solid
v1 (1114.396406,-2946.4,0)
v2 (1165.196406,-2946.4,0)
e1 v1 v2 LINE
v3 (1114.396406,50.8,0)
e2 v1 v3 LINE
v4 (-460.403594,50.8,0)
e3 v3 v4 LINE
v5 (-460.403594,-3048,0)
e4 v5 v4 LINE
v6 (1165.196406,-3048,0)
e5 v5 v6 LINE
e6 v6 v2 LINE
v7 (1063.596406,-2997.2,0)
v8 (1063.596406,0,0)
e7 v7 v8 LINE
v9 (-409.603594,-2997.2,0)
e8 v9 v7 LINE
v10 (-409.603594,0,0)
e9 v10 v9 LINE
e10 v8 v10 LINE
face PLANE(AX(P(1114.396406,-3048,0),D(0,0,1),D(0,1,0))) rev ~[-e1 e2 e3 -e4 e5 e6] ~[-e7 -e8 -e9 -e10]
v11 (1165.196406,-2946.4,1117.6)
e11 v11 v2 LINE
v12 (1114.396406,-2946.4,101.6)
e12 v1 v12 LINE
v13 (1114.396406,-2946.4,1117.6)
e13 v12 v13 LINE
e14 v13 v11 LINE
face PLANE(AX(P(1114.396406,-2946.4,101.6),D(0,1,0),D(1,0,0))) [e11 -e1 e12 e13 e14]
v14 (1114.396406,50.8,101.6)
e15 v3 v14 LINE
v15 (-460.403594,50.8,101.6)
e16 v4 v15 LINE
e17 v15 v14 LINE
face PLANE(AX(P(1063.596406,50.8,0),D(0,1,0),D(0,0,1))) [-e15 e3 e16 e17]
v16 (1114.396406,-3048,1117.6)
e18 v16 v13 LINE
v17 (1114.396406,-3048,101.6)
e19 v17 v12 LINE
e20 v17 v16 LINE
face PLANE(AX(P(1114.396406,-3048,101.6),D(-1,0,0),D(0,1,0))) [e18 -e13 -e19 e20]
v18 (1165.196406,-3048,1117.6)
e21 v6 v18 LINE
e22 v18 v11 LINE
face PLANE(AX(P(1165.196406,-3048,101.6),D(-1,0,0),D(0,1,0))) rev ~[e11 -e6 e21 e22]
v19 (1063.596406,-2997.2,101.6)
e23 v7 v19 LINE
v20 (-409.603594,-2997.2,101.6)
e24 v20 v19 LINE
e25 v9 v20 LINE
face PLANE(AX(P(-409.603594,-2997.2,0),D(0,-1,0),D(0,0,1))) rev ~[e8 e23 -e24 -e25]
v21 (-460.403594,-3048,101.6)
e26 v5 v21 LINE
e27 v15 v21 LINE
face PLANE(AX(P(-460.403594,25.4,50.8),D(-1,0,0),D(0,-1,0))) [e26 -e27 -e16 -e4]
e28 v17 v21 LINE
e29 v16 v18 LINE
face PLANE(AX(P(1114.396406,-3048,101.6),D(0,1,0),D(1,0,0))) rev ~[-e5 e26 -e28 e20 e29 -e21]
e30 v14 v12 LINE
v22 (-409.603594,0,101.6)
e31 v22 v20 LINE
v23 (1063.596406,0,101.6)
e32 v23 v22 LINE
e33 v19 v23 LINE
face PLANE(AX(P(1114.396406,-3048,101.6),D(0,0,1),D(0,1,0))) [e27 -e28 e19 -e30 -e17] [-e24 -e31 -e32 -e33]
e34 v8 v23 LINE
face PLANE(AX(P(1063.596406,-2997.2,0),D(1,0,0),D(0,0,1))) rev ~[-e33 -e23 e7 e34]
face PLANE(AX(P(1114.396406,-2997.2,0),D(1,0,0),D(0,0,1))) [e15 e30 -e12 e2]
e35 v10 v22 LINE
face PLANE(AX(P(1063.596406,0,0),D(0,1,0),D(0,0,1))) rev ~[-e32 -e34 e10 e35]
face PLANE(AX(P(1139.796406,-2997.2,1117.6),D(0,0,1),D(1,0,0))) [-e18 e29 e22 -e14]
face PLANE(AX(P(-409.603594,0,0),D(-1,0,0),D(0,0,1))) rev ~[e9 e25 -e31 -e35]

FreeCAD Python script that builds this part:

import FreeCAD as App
import Part
import Sketcher
Q = App.Units.Quantity

doc = App.newDocument("Part")
body = doc.addObject("PartDesign::Body", "Body")

sketch1 = doc.addObject("Sketcher::SketchObject", "Sketch")
body.addObject(sketch1)
sketch1.AttachmentSupport = (doc.XZ_Plane, [""])
sketch1.MapMode = "FlatFace"
sketch1.addGeometry([
    Part.LineSegment(App.Vector(-460, 102, 0), App.Vector(-460, 0, 0)),
    Part.LineSegment(App.Vector(-460, 0, 0), App.Vector(-410, 0, 0)),
    Part.LineSegment(App.Vector(-410, 0, 0), App.Vector(-410, 102, 0)),
    Part.LineSegment(App.Vector(-410, 102, 0), App.Vector(-460, 102, 0)),
], False)
sketch1.addConstraint([
    Sketcher.Constraint("Coincident", 0, 2, 1, 1),
    Sketcher.Constraint("Coincident", 1, 2, 2, 1),
    Sketcher.Constraint("Coincident", 2, 2, 3, 1),
    Sketcher.Constraint("Coincident", 3, 2, 0, 1),
    Sketcher.Constraint("Vertical", 0),
    Sketcher.Constraint("Horizontal", 1),
    Sketcher.Constraint("Vertical", 2),
    Sketcher.Constraint("Horizontal", 3),
    Sketcher.Constraint("PointOnObject", 0, 2, -1),
    Sketcher.Constraint("DistanceX", 1, 1, 1, 2, Q("2 in")),
    Sketcher.Constraint("DistanceY", 0, 2, 0, 1, Q("4 in")),
    Sketcher.Constraint("DistanceX", 0, 2, -1, 1, Q("460.403594 mm")),
])
pad1 = doc.addObject("PartDesign::Pad", "Pad")
body.addObject(pad1)
pad1.Profile = sketch1
pad1.Length = Q("120 in")

sketch2 = doc.addObject("Sketcher::SketchObject", "Sketch001")
body.addObject(sketch2)
sketch2.AttachmentSupport = (doc.YZ_Plane, [""])
sketch2.MapMode = "FlatFace"
sketch2.AttachmentOffset = App.Placement(App.Vector(0, 0, -409.603594), App.Rotation())
sketch2.addGeometry([
    Part.LineSegment(App.Vector(-3048, 102, 0), App.Vector(-3048, 0, 0)),
    Part.LineSegment(App.Vector(-3048, 0, 0), App.Vector(-2997, 0, 0)),
    Part.LineSegment(App.Vector(-2997, 0, 0), App.Vector(-2997, 102, 0)),
    Part.LineSegment(App.Vector(-2997, 102, 0), App.Vector(-3048, 102, 0)),
], False)
sketch2.addConstraint([
    Sketcher.Constraint("Coincident", 0, 2, 1, 1),
    Sketcher.Constraint("Coincident", 1, 2, 2, 1),
    Sketcher.Constraint("Coincident", 2, 2, 3, 1),
    Sketcher.Constraint("Coincident", 3, 2, 0, 1),
    Sketcher.Constraint("Vertical", 0),
    Sketcher.Constraint("Horizontal", 1),
    Sketcher.Constraint("Vertical", 2),
    Sketcher.Constraint("Horizontal", 3),
    Sketcher.Constraint("PointOnObject", 0, 2, -1),
    Sketcher.Constraint("DistanceX", 1, 1, 1, 2, Q("2 in")),
    Sketcher.Constraint("DistanceY", 0, 2, 0, 1, Q("4 in")),
    Sketcher.Constraint("DistanceX", 0, 2, -1, 1, Q("120 in")),
])
pad2 = doc.addObject("PartDesign::Pad", "Pad001")
body.addObject(pad2)
pad2.Profile = sketch2
pad2.Length = Q("60 in")

sketch3 = doc.addObject("Sketcher::SketchObject", "Sketch002")
body.addObject(sketch3)
sketch3.AttachmentSupport = (doc.XZ_Plane, [""])
sketch3.MapMode = "FlatFace"
sketch3.AttachmentOffset = App.Placement(App.Vector(0, 0, 118 * 25.4), App.Rotation())
sketch3.addGeometry([
    Part.LineSegment(App.Vector(1114, 102, 0), App.Vector(1114, 0, 0)),
    Part.LineSegment(App.Vector(1114, 0, 0), App.Vector(1064, 0, 0)),
    Part.LineSegment(App.Vector(1064, 0, 0), App.Vector(1064, 102, 0)),
    Part.LineSegment(App.Vector(1064, 102, 0), App.Vector(1114, 102, 0)),
], False)
sketch3.addConstraint([
    Sketcher.Constraint("Coincident", 0, 2, 1, 1),
    Sketcher.Constraint("Coincident", 1, 2, 2, 1),
    Sketcher.Constraint("Coincident", 2, 2, 3, 1),
    Sketcher.Constraint("Coincident", 3, 2, 0, 1),
    Sketcher.Constraint("Vertical", 0),
    Sketcher.Constraint("Horizontal", 1),
    Sketcher.Constraint("Vertical", 2),
    Sketcher.Constraint("Horizontal", 3),
    Sketcher.Constraint("PointOnObject", 0, 2, -1),
    Sketcher.Constraint("DistanceX", 1, 2, 1, 1, Q("2 in")),
    Sketcher.Constraint("DistanceY", 0, 2, 0, 1, Q("4 in")),
    Sketcher.Constraint("DistanceX", -1, 1, 0, 2, Q("1114.396406 mm")),
])
pad3 = doc.addObject("PartDesign::Pad", "Pad002")
body.addObject(pad3)
pad3.Profile = sketch3
pad3.Length = Q("120 in")
pad3.Reversed = True

sketch4 = doc.addObject("Sketcher::SketchObject", "Sketch003")
body.addObject(sketch4)
sketch4.AttachmentSupport = (doc.YZ_Plane, [""])
sketch4.MapMode = "FlatFace"
sketch4.AttachmentOffset = App.Placement(App.Vector(0, 0, 1063.596406), App.Rotation())
sketch4.addGeometry([
    Part.LineSegment(App.Vector(51, 102, 0), App.Vector(51, 0, 0)),
    Part.LineSegment(App.Vector(51, 0, 0), App.Vector(0, 0, 0)),
    Part.LineSegment(App.Vector(0, 0, 0), App.Vector(0, 102, 0)),
    Part.LineSegment(App.Vector(0, 102, 0), App.Vector(51, 102, 0)),
], False)
sketch4.addConstraint([
    Sketcher.Constraint("Coincident", 0, 2, 1, 1),
    Sketcher.Constraint("Coincident", 1, 2, 2, 1),
    Sketcher.Constraint("Coincident", 2, 2, 3, 1),
    Sketcher.Constraint("Coincident", 3, 2, 0, 1),
    Sketcher.Constraint("Vertical", 0),
    Sketcher.Constraint("Horizontal", 1),
    Sketcher.Constraint("Vertical", 2),
    Sketcher.Constraint("Horizontal", 3),
    Sketcher.Constraint("Coincident", 1, 2, -1, 1),
    Sketcher.Constraint("DistanceX", 1, 2, 1, 1, Q("2 in")),
    Sketcher.Constraint("DistanceY", 0, 2, 0, 1, Q("4 in")),
])
pad4 = doc.addObject("PartDesign::Pad", "Pad003")
body.addObject(pad4)
pad4.Profile = sketch4
pad4.Length = Q("60 in")
pad4.Reversed = True

sketch5 = doc.addObject("Sketcher::SketchObject", "Sketch004")
body.addObject(sketch5)
sketch5.AttachmentSupport = (doc.YZ_Plane, [""])
sketch5.MapMode = "FlatFace"
sketch5.AttachmentOffset = App.Placement(App.Vector(0, 0, 1114.396406), App.Rotation())
sketch5.addGeometry([
    Part.LineSegment(App.Vector(-3048, 102, 0), App.Vector(-3048, 0, 0)),
    Part.LineSegment(App.Vector(-3048, 0, 0), App.Vector(-2946, 0, 0)),
    Part.LineSegment(App.Vector(-2946, 0, 0), App.Vector(-2946, 102, 0)),
    Part.LineSegment(App.Vector(-2946, 102, 0), App.Vector(-3048, 102, 0)),
], False)
sketch5.addConstraint([
    Sketcher.Constraint("Coincident", 0, 2, 1, 1),
    Sketcher.Constraint("Coincident", 1, 2, 2, 1),
    Sketcher.Constraint("Coincident", 2, 2, 3, 1),
    Sketcher.Constraint("Coincident", 3, 2, 0, 1),
    Sketcher.Constraint("Vertical", 0),
    Sketcher.Constraint("Horizontal", 1),
    Sketcher.Constraint("Vertical", 2),
    Sketcher.Constraint("Horizontal", 3),
    Sketcher.Constraint("PointOnObject", 0, 2, -1),
    Sketcher.Constraint("Equal", 3, 0),
    Sketcher.Constraint("DistanceX", 1, 1, 1, 2, Q("4 in")),
    Sketcher.Constraint("DistanceX", 0, 2, -1, 1, Q("120 in")),
])
pad5 = doc.addObject("PartDesign::Pad", "Pad004")
body.addObject(pad5)
pad5.Profile = sketch5
pad5.Length = Q("2 in")

sketch6 = doc.addObject("Sketcher::SketchObject", "Sketch005")
body.addObject(sketch6)
sketch6.AttachmentSupport = (doc.XY_Plane, [""])
sketch6.MapMode = "FlatFace"
sketch6.AttachmentOffset = App.Placement(App.Vector(0, 0, 4 * 25.4), App.Rotation())
sketch6.addGeometry([
    Part.LineSegment(App.Vector(1114, -2946, 0), App.Vector(1114, -3048, 0)),
    Part.LineSegment(App.Vector(1114, -3048, 0), App.Vector(1165, -3048, 0)),
    Part.LineSegment(App.Vector(1165, -3048, 0), App.Vector(1165, -2946, 0)),
    Part.LineSegment(App.Vector(1165, -2946, 0), App.Vector(1114, -2946, 0)),
], False)
sketch6.addConstraint([
    Sketcher.Constraint("Coincident", 0, 2, 1, 1),
    Sketcher.Constraint("Coincident", 1, 2, 2, 1),
    Sketcher.Constraint("Coincident", 2, 2, 3, 1),
    Sketcher.Constraint("Coincident", 3, 2, 0, 1),
    Sketcher.Constraint("Vertical", 0),
    Sketcher.Constraint("Horizontal", 1),
    Sketcher.Constraint("Vertical", 2),
    Sketcher.Constraint("Horizontal", 3),
    Sketcher.Constraint("DistanceX", 1, 1, 1, 2, Q("2 in")),
    Sketcher.Constraint("DistanceY", 0, 2, 0, 1, Q("4 in")),
    Sketcher.Constraint("DistanceY", 0, 2, -1, 1, Q("120 in")),
    Sketcher.Constraint("DistanceX", -1, 1, 0, 2, Q("1114.396406 mm")),
])
pad6 = doc.addObject("PartDesign::Pad", "Pad005")
body.addObject(pad6)
pad6.Profile = sketch6
pad6.Length = Q("40 in")

doc.recompute()
